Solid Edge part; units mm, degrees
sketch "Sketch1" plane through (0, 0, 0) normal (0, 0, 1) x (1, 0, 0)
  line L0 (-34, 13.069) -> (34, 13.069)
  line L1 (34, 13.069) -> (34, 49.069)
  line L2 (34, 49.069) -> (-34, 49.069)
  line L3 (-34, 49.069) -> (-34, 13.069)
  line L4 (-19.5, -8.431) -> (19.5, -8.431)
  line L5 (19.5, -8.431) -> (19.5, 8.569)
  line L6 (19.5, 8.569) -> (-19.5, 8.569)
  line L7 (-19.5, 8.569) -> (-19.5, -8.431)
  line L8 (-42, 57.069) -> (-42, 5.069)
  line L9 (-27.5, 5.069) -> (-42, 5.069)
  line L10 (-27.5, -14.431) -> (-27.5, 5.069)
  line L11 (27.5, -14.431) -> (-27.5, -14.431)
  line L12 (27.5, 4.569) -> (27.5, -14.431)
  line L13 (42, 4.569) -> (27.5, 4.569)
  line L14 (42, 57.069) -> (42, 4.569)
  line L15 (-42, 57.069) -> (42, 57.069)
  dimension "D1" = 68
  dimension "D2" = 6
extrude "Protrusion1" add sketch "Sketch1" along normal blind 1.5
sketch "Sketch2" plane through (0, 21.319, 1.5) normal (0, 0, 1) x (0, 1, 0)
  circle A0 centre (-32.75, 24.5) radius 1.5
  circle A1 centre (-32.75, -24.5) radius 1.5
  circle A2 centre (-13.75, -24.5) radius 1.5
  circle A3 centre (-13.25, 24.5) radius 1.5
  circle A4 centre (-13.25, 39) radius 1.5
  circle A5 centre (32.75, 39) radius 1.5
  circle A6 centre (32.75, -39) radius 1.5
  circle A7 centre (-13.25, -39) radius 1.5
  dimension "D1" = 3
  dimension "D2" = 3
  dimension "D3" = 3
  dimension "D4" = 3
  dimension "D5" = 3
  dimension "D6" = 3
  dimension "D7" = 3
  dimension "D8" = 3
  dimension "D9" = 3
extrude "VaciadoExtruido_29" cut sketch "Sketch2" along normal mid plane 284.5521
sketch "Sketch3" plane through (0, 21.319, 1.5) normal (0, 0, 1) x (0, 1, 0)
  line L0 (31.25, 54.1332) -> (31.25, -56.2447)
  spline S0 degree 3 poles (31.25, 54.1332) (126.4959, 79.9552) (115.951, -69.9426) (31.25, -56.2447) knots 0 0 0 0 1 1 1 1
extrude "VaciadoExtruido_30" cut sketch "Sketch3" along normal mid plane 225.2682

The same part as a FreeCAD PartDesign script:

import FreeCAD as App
import Part
import Sketcher
from FreeCAD import Vector
Q = App.Units.Quantity

doc = App.newDocument("Part")
params = doc.addObject("Spreadsheet::Sheet", "Params")
for row, (alias, value) in enumerate([
    ("sketch1_width", "84 mm"),
    ("sketch1_width2", "55 mm"),
    ("sketch1_width3", "39 mm"),
    ("sketch1_height", "52 mm"),
    ("sketch1_height2", "19 mm"),
    ("pad1_length", "1.5 mm"),
    ("sketch2_diameter", "3 mm"),
    ("pocket1_length", "284.5521 mm"),
    ("pocket2_length", "225.2682 mm"),
], start=1):
    params.set(f"A{row}", alias)
    params.set(f"B{row}", "=" + value)
    params.setAlias(f"B{row}", alias)

body = doc.addObject("PartDesign::Body", "Body")

# Sketch on XY plane
sketch1 = doc.addObject("Sketcher::SketchObject", "Sketch")
body.addObject(sketch1)
sketch1.AttachmentSupport = (doc.XY_Plane, [""])
sketch1.MapMode = "FlatFace"
sketch1.addGeometry(Part.LineSegment(Vector(42, 57, 0), Vector(-42, 57, 0)), False)
sketch1.addGeometry(Part.LineSegment(Vector(-42, 57, 0), Vector(-42, 5, 0)), False)
sketch1.addGeometry(Part.LineSegment(Vector(-42, 5, 0), Vector(-28, 5, 0)), False)
sketch1.addGeometry(Part.LineSegment(Vector(-28, 5, 0), Vector(-28, -14, 0)), False)
sketch1.addGeometry(Part.LineSegment(Vector(-28, -14, 0), Vector(28, -14, 0)), False)
sketch1.addGeometry(Part.LineSegment(Vector(28, -14, 0), Vector(28, 5, 0)), False)
sketch1.addGeometry(Part.LineSegment(Vector(28, 5, 0), Vector(42, 5, 0)), False)
sketch1.addGeometry(Part.LineSegment(Vector(42, 5, 0), Vector(42, 57, 0)), False)
sketch1.addGeometry(Part.LineSegment(Vector(20, -8, 0), Vector(-20, -8, 0)), False)
sketch1.addGeometry(Part.LineSegment(Vector(-20, -8, 0), Vector(-20, 9, 0)), False)
sketch1.addGeometry(Part.LineSegment(Vector(-20, 9, 0), Vector(20, 9, 0)), False)
sketch1.addGeometry(Part.LineSegment(Vector(20, 9, 0), Vector(20, -8, 0)), False)
sketch1.addGeometry(Part.LineSegment(Vector(34, 13, 0), Vector(-34, 13, 0)), False)
sketch1.addGeometry(Part.LineSegment(Vector(-34, 13, 0), Vector(-34, 49, 0)), False)
sketch1.addGeometry(Part.LineSegment(Vector(-34, 49, 0), Vector(34, 49, 0)), False)
sketch1.addGeometry(Part.LineSegment(Vector(34, 49, 0), Vector(34, 13, 0)), False)
sketch1.addConstraint(Sketcher.Constraint("Coincident", 0, 2, 1, 1))
sketch1.addConstraint(Sketcher.Constraint("Coincident", 1, 2, 2, 1))
sketch1.addConstraint(Sketcher.Constraint("Coincident", 2, 2, 3, 1))
sketch1.addConstraint(Sketcher.Constraint("Coincident", 3, 2, 4, 1))
sketch1.addConstraint(Sketcher.Constraint("Coincident", 4, 2, 5, 1))
sketch1.addConstraint(Sketcher.Constraint("Coincident", 5, 2, 6, 1))
sketch1.addConstraint(Sketcher.Constraint("Coincident", 6, 2, 7, 1))
sketch1.addConstraint(Sketcher.Constraint("Coincident", 7, 2, 0, 1))
sketch1.addConstraint(Sketcher.Constraint("Coincident", 8, 2, 9, 1))
sketch1.addConstraint(Sketcher.Constraint("Coincident", 9, 2, 10, 1))
sketch1.addConstraint(Sketcher.Constraint("Coincident", 10, 2, 11, 1))
sketch1.addConstraint(Sketcher.Constraint("Coincident", 11, 2, 8, 1))
sketch1.addConstraint(Sketcher.Constraint("Coincident", 12, 2, 13, 1))
sketch1.addConstraint(Sketcher.Constraint("Coincident", 13, 2, 14, 1))
sketch1.addConstraint(Sketcher.Constraint("Coincident", 14, 2, 15, 1))
sketch1.addConstraint(Sketcher.Constraint("Coincident", 15, 2, 12, 1))
sketch1.addConstraint(Sketcher.Constraint("Horizontal", 0))
sketch1.addConstraint(Sketcher.Constraint("Vertical", 1))
sketch1.addConstraint(Sketcher.Constraint("Horizontal", 2))
sketch1.addConstraint(Sketcher.Constraint("Vertical", 3))
sketch1.addConstraint(Sketcher.Constraint("Horizontal", 4))
sketch1.addConstraint(Sketcher.Constraint("Vertical", 5))
sketch1.addConstraint(Sketcher.Constraint("Horizontal", 6))
sketch1.addConstraint(Sketcher.Constraint("Vertical", 7))
sketch1.addConstraint(Sketcher.Constraint("Horizontal", 8))
sketch1.addConstraint(Sketcher.Constraint("Vertical", 9))
sketch1.addConstraint(Sketcher.Constraint("Horizontal", 10))
sketch1.addConstraint(Sketcher.Constraint("Vertical", 11))
sketch1.addConstraint(Sketcher.Constraint("Horizontal", 12))
sketch1.addConstraint(Sketcher.Constraint("Vertical", 13))
sketch1.addConstraint(Sketcher.Constraint("Horizontal", 14))
sketch1.addConstraint(Sketcher.Constraint("Vertical", 15))
sketch1.addConstraint(Sketcher.Constraint("Equal", 2, 6))
sketch1.addConstraint(Sketcher.Constraint("DistanceX", 12, 2, -1, 1, Q("34 mm")))
sketch1.addConstraint(Sketcher.Constraint("DistanceX", -1, 1, 14, 2, Q("34 mm")))
sketch1.addConstraint(Sketcher.Constraint("DistanceX", 0, 2, 0, 1, Q("84 mm")))
sketch1.addConstraint(Sketcher.Constraint("DistanceX", 4, 1, 4, 2, Q("55 mm")))
sketch1.addConstraint(Sketcher.Constraint("DistanceX", 8, 2, 8, 1, Q("39 mm")))
sketch1.addConstraint(Sketcher.Constraint("DistanceY", 1, 2, 1, 1, Q("52 mm")))
sketch1.addConstraint(Sketcher.Constraint("DistanceY", 5, 1, 5, 2, Q("19 mm")))
sketch1.addConstraint(Sketcher.Constraint("DistanceY", 9, 1, 9, 2, Q("17 mm")))
sketch1.addConstraint(Sketcher.Constraint("DistanceY", 13, 1, 13, 2, Q("36 mm")))
sketch1.addConstraint(Sketcher.Constraint("DistanceY", 3, 2, 3, 1, Q("19.5 mm")))
sketch1.addConstraint(Sketcher.Constraint("DistanceX", 0, 2, -1, 1, Q("42 mm")))
sketch1.addConstraint(Sketcher.Constraint("DistanceX", 3, 2, 8, 2, Q("8 mm")))
sketch1.addConstraint(Sketcher.Constraint("DistanceY", 3, 2, 8, 2, Q("6 mm")))
sketch1.addConstraint(Sketcher.Constraint("DistanceY", 2, 2, 12, 2, Q("8 mm")))
sketch1.addConstraint(Sketcher.Constraint("DistanceY", -1, 1, 0, 2, Q("57.069 mm")))
sketch1.setExpression("Constraints[35]", "Params.sketch1_width")
sketch1.setExpression("Constraints[36]", "Params.sketch1_width2")
sketch1.setExpression("Constraints[37]", "Params.sketch1_width3")
sketch1.setExpression("Constraints[38]", "Params.sketch1_height")
sketch1.setExpression("Constraints[39]", "Params.sketch1_height2")
pad1 = doc.addObject("PartDesign::Pad", "Pad")
body.addObject(pad1)
pad1.Profile = sketch1
pad1.setExpression("Length", "Params.pad1_length")

# Sketch on XY plane
sketch2 = doc.addObject("Sketcher::SketchObject", "Sketch001")
body.addObject(sketch2)
sketch2.AttachmentSupport = (doc.XY_Plane, [""])
sketch2.MapMode = "FlatFace"
sketch2.AttachmentOffset = App.Placement(Vector(0, 0, 1.5), App.Rotation())
sketch2.addGeometry(Part.Circle(Vector(-24.5, -11.4, 0), Vector(0, 0, 1), 1.5), False)
sketch2.addGeometry(Part.Circle(Vector(24.5, -11.4, 0), Vector(0, 0, 1), 1.5), False)
sketch2.addGeometry(Part.Circle(Vector(24.5, 7.6, 0), Vector(0, 0, 1), 1.5), False)
sketch2.addGeometry(Part.Circle(Vector(-24.5, 8.1, 0), Vector(0, 0, 1), 1.5), False)
sketch2.addGeometry(Part.Circle(Vector(-39, 8.1, 0), Vector(0, 0, 1), 1.5), False)
sketch2.addGeometry(Part.Circle(Vector(-39, 54.1, 0), Vector(0, 0, 1), 1.5), False)
sketch2.addGeometry(Part.Circle(Vector(39, 54.1, 0), Vector(0, 0, 1), 1.5), False)
sketch2.addGeometry(Part.Circle(Vector(39, 8.1, 0), Vector(0, 0, 1), 1.5), False)
sketch2.addConstraint(Sketcher.Constraint("Equal", 0, 1))
sketch2.addConstraint(Sketcher.Constraint("Equal", 1, 2))
sketch2.addConstraint(Sketcher.Constraint("Equal", 2, 3))
sketch2.addConstraint(Sketcher.Constraint("Equal", 3, 4))
sketch2.addConstraint(Sketcher.Constraint("Equal", 4, 5))
sketch2.addConstraint(Sketcher.Constraint("Equal", 5, 6))
sketch2.addConstraint(Sketcher.Constraint("Equal", 6, 7))
sketch2.addConstraint(Sketcher.Constraint("Symmetric", 0, 3, 1, 3, -2))
sketch2.addConstraint(Sketcher.Constraint("Symmetric", 5, 3, 6, 3, -2))
sketch2.addConstraint(Sketcher.Constraint("Symmetric", 4, 3, 7, 3, -2))
sketch2.addConstraint(Sketcher.Constraint("Horizontal", 3, 3, 4, 3))
sketch2.addConstraint(Sketcher.Constraint("Vertical", 1, 3, 2, 3))
sketch2.addConstraint(Sketcher.Constraint("Vertical", 0, 3, 3, 3))
sketch2.addConstraint(Sketcher.Constraint("Vertical", 4, 3, 5, 3))
sketch2.addConstraint(Sketcher.Constraint("Diameter", 0, Q("3 mm")))
sketch2.addConstraint(Sketcher.Constraint("DistanceX", 4, 3, -1, 1, Q("39 mm")))
sketch2.addConstraint(Sketcher.Constraint("DistanceX", 0, 3, 1, 3, Q("49 mm")))
sketch2.addConstraint(Sketcher.Constraint("DistanceY", 1, 3, 2, 3, Q("19 mm")))
sketch2.addConstraint(Sketcher.Constraint("DistanceY", 4, 3, 5, 3, Q("46 mm")))
sketch2.addConstraint(Sketcher.Constraint("DistanceY", 0, 3, 3, 3, Q("19.5 mm")))
sketch2.addConstraint(Sketcher.Constraint("DistanceY", 0, 3, -1, 1, Q("11.431 mm")))
sketch2.setExpression("Constraints[14]", "Params.sketch2_diameter")
pocket1 = doc.addObject("PartDesign::Pocket", "Pocket")
body.addObject(pocket1)
pocket1.Profile = sketch2
pocket1.setExpression("Length", "Params.pocket1_length")
pocket1.Midplane = True

# Sketch on XY plane
sketch3 = doc.addObject("Sketcher::SketchObject", "Sketch002")
body.addObject(sketch3)
sketch3.AttachmentSupport = (doc.XY_Plane, [""])
sketch3.MapMode = "FlatFace"
sketch3.AttachmentOffset = App.Placement(Vector(0, 0, 1.5), App.Rotation())
sketch3.addGeometry(Part.BSplineCurve([Vector(-54.1332, 52.569, 0), Vector(-79.9552, 147.8149, 0), Vector(69.9426, 137.27, 0), Vector(56.2447, 52.569, 0)], [4, 4], [0, 1], False, 3, [1, 1, 1, 1], False), False)
sketch3.addGeometry(Part.LineSegment(Vector(-54.1332, 52.569, 0), Vector(56.2447, 52.569, 0)), False)
sketch3.addConstraint(Sketcher.Constraint("Block", 0))
sketch3.addConstraint(Sketcher.Constraint("Coincident", 0, 1, 1, 1))
sketch3.addConstraint(Sketcher.Constraint("Coincident", 1, 2, 0, 2))
pocket2 = doc.addObject("PartDesign::Pocket", "Pocket001")
body.addObject(pocket2)
pocket2.Profile = sketch3
pocket2.setExpression("Length", "Params.pocket2_length")
pocket2.Midplane = True

doc.recompute()
